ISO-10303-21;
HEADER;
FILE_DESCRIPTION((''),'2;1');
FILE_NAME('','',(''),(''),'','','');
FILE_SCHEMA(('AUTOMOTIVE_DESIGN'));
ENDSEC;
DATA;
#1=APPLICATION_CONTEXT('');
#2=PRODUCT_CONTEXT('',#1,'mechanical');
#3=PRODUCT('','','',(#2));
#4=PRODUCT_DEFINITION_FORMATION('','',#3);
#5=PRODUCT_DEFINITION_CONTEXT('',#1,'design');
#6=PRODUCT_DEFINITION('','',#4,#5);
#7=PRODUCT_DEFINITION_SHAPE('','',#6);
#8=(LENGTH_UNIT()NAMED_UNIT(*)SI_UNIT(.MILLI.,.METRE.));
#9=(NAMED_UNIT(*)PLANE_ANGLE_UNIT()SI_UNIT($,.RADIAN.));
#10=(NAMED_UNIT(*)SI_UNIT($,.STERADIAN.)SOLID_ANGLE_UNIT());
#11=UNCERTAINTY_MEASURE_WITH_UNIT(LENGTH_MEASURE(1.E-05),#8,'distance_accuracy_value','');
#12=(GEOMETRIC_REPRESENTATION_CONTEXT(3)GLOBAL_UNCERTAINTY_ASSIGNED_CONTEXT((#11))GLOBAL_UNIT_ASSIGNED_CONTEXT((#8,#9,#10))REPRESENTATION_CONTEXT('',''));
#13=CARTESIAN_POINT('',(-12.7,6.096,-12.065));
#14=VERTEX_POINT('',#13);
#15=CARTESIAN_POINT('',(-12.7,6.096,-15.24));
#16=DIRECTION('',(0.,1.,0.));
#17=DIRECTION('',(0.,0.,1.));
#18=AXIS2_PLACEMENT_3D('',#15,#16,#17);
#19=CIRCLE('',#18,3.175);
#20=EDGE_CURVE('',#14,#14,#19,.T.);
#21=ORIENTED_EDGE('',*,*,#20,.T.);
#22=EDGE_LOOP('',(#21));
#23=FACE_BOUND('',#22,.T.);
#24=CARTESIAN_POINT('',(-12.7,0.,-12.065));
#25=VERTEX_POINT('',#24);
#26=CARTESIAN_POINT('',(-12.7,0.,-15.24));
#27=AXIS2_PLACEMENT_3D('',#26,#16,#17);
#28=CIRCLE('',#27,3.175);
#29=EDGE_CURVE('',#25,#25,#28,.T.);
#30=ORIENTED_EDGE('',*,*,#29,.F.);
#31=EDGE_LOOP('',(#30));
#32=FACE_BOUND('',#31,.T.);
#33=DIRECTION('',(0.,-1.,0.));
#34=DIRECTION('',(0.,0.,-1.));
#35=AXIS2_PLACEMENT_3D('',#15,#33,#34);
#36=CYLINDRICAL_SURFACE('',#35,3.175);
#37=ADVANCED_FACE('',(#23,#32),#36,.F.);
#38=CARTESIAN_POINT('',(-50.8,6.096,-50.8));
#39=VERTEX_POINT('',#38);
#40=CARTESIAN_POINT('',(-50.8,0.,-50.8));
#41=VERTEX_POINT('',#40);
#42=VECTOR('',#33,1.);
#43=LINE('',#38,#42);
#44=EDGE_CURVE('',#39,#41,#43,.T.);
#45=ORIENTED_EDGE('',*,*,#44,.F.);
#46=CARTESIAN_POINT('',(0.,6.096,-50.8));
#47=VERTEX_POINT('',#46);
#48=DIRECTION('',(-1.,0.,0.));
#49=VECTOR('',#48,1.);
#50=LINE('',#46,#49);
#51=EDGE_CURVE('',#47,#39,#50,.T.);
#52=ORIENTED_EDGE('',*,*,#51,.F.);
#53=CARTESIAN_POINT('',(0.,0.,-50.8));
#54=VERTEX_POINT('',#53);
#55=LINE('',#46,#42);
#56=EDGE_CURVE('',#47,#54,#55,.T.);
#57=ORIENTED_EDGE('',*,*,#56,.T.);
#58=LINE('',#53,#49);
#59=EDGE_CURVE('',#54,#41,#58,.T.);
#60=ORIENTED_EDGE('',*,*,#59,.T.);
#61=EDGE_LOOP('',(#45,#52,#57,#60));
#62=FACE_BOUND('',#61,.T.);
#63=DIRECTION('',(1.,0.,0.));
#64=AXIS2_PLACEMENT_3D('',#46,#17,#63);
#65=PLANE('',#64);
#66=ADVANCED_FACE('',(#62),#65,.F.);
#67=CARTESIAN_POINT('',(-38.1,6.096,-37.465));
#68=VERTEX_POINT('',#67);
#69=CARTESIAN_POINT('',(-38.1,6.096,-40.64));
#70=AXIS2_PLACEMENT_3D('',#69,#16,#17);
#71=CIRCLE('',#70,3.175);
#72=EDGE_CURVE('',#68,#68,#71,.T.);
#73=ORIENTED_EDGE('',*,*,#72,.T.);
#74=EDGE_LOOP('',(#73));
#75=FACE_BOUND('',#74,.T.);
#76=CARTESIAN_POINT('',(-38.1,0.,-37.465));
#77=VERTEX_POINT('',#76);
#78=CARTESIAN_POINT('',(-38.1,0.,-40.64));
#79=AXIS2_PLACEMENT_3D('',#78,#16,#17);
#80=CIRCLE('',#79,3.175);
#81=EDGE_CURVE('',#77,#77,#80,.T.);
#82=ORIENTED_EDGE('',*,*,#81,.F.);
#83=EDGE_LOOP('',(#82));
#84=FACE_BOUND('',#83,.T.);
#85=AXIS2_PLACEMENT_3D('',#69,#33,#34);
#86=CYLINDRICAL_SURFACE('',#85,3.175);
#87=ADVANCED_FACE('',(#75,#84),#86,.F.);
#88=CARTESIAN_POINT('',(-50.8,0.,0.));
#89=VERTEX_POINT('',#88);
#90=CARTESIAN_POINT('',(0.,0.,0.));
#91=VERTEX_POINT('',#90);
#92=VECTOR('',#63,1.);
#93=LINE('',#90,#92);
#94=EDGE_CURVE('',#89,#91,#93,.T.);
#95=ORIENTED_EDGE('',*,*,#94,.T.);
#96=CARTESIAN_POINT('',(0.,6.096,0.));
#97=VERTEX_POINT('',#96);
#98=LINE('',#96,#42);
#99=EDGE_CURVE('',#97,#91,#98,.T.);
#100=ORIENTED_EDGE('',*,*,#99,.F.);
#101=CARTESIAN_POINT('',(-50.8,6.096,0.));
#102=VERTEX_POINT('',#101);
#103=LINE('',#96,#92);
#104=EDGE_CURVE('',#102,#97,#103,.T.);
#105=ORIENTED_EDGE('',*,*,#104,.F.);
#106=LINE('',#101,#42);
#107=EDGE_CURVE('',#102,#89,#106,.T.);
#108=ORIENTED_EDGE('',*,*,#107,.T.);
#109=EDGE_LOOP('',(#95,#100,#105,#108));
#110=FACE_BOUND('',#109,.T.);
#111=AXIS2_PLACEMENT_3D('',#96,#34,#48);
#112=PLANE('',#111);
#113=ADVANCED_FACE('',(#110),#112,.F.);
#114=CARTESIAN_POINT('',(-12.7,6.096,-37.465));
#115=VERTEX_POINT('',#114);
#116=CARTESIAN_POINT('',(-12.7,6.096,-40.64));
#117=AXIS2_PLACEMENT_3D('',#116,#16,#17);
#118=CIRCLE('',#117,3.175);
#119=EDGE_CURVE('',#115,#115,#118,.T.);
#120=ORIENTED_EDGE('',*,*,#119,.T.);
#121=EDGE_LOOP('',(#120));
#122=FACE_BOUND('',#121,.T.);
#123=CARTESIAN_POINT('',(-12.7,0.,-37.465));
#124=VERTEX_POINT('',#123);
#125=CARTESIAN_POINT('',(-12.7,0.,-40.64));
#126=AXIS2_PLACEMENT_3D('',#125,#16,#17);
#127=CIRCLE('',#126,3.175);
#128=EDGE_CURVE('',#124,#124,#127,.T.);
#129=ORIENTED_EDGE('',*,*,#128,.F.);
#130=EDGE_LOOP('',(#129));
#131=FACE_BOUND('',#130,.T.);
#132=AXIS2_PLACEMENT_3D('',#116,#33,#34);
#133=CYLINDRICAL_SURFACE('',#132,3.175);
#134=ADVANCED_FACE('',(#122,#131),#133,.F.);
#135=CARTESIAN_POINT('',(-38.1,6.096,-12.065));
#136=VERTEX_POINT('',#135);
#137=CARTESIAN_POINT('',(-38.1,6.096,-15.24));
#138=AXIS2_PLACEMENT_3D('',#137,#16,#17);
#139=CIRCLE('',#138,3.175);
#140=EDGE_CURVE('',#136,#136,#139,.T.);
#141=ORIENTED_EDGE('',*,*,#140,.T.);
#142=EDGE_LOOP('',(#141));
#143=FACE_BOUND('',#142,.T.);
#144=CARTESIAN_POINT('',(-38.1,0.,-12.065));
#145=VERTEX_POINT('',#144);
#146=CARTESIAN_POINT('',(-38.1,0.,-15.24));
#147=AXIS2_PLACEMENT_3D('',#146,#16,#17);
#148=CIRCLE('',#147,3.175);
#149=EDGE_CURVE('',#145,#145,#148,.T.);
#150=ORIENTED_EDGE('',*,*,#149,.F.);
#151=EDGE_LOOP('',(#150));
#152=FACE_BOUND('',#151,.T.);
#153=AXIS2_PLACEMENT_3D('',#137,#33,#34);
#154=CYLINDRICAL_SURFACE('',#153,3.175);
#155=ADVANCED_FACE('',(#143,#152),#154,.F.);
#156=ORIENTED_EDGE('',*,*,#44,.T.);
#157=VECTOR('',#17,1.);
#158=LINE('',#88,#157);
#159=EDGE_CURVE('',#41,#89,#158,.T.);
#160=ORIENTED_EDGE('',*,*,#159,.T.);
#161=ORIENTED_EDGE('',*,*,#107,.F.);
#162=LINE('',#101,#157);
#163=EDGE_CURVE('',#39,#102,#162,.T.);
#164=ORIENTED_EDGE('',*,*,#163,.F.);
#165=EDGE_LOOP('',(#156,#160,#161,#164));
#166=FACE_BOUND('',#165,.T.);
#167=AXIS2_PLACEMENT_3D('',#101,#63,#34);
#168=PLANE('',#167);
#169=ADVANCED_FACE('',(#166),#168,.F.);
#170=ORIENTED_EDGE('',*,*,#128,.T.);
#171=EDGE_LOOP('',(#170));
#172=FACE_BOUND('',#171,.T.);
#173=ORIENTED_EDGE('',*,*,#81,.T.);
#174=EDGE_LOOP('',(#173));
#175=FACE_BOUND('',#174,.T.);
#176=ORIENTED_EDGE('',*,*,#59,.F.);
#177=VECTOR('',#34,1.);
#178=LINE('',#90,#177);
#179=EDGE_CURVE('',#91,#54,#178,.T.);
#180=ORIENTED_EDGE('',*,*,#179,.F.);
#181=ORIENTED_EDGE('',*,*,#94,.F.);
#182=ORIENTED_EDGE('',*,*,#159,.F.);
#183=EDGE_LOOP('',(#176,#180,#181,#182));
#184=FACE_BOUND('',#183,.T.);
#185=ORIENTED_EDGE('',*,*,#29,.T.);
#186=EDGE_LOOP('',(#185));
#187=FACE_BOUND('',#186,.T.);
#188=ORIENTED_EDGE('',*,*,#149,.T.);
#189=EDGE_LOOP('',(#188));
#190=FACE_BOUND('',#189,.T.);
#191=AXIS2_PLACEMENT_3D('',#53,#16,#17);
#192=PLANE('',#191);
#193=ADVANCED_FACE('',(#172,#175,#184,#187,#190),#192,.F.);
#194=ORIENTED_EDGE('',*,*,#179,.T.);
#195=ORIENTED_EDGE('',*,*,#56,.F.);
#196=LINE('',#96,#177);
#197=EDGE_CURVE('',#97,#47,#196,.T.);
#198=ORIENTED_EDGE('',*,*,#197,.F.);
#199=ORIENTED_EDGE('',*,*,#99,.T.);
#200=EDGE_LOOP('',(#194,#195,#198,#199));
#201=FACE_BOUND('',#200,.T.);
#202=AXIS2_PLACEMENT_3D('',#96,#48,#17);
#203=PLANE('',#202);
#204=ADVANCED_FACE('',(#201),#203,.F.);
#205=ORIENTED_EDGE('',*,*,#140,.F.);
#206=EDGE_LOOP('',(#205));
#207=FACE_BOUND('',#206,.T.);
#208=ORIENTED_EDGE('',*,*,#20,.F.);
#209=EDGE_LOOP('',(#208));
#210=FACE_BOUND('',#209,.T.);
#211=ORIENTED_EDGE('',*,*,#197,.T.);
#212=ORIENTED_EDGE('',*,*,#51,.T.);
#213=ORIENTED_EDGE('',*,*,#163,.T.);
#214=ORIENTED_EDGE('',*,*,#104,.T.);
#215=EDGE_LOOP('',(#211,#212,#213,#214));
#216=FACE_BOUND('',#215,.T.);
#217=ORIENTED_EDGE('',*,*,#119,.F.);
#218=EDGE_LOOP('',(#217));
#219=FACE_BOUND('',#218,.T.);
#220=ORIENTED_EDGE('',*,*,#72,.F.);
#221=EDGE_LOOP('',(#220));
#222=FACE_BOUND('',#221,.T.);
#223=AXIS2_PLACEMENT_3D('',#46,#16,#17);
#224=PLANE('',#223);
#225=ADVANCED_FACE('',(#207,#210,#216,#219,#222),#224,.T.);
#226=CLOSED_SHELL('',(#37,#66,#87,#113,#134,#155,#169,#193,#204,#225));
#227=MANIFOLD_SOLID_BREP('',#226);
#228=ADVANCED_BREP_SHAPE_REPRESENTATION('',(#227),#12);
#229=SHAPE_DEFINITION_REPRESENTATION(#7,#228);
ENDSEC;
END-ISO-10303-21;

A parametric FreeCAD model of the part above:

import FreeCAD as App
import Part
import Sketcher
from FreeCAD import Vector
Q = App.Units.Quantity


def add_polygon(sketch, points):
    """Adds a closed chain of lines whose ends are joined by coincident constraints."""
    first, n = sketch.GeometryCount, len(points)
    for a, b in zip(points, points[1:] + points[:1]):
        sketch.addGeometry(Part.LineSegment(App.Vector(*a, 0), App.Vector(*b, 0)), False)
    for i in range(n):
        sketch.addConstraint(Sketcher.Constraint("Coincident", first + i, 2, first + (i + 1) % n, 1))

doc = App.newDocument("Part")
params = doc.addObject("Spreadsheet::Sheet", "Params")
for row, (alias, value) in enumerate([
    ("sketch1_diameter", "0.25 in"),
    ("sketch1_width", "2 in"),
    ("pad1_length", "0.24 in"),
], start=1):
    params.set(f"A{row}", alias)
    params.set(f"B{row}", "=" + value)
    params.setAlias(f"B{row}", alias)

body = doc.addObject("PartDesign::Body", "Body")

# Sketch on XZ plane
sketch1 = body.newObject("Sketcher::SketchObject", "Sketch")
sketch1.AttachmentSupport = (doc.getObject("XZ_Plane"), [""])
sketch1.MapMode = "FlatFace"
add_polygon(sketch1, [(-50.8, -50.8), (-50.8, 0), (0, 0), (0, -50.8)])  # lines 0-3
sketch1.addGeometry(Part.Circle(Vector(-38.1, -15.2, 0), Vector(0, 0, 1), 3.2), False)  # 4
sketch1.addGeometry(Part.Circle(Vector(-12.7, -15.2, 0), Vector(0, 0, 1), 3.2), False)  # 5
sketch1.addGeometry(Part.Circle(Vector(-38.1, -40.6, 0), Vector(0, 0, 1), 3.2), False)  # 6
sketch1.addGeometry(Part.Circle(Vector(-12.7, -40.6, 0), Vector(0, 0, 1), 3.2), False)  # 7
sketch1.addConstraint([
    Sketcher.Constraint("Vertical", 0),
    Sketcher.Constraint("Horizontal", 1),
    Sketcher.Constraint("Vertical", 2),
    Sketcher.Constraint("Horizontal", 3),
    Sketcher.Constraint("Coincident", 1, 2, -1, 1),
    Sketcher.Constraint("Equal", 4, 5),
    Sketcher.Constraint("Equal", 5, 6),
    Sketcher.Constraint("Equal", 6, 7),
    Sketcher.Constraint("Horizontal", 4, 3, 5, 3),
    Sketcher.Constraint("Horizontal", 6, 3, 7, 3),
    Sketcher.Constraint("Vertical", 4, 3, 6, 3),
    Sketcher.Constraint("Vertical", 5, 3, 7, 3),
    Sketcher.Constraint("Equal", 3, 0),
    Sketcher.Constraint("Diameter", 4, Q("0.25 in")),
    Sketcher.Constraint("DistanceX", 1, 1, 1, 2, Q("2 in")),
    Sketcher.Constraint("DistanceX", 4, 3, 5, 3, Q("1 in")),
    Sketcher.Constraint("DistanceY", 6, 3, 4, 3, Q("1 in")),
    Sketcher.Constraint("DistanceX", 4, 3, -1, 1, Q("1.5 in")),
    Sketcher.Constraint("DistanceY", 4, 3, -1, 1, Q("0.6 in")),
])
sketch1.setExpression("Constraints[17]", "Params.sketch1_diameter")
sketch1.setExpression("Constraints[18]", "Params.sketch1_width")
pad1 = body.newObject("PartDesign::Pad", "Pad")
pad1.Profile = sketch1
pad1.setExpression("Length", "Params.pad1_length")
pad1.Reversed = True

doc.recompute()
